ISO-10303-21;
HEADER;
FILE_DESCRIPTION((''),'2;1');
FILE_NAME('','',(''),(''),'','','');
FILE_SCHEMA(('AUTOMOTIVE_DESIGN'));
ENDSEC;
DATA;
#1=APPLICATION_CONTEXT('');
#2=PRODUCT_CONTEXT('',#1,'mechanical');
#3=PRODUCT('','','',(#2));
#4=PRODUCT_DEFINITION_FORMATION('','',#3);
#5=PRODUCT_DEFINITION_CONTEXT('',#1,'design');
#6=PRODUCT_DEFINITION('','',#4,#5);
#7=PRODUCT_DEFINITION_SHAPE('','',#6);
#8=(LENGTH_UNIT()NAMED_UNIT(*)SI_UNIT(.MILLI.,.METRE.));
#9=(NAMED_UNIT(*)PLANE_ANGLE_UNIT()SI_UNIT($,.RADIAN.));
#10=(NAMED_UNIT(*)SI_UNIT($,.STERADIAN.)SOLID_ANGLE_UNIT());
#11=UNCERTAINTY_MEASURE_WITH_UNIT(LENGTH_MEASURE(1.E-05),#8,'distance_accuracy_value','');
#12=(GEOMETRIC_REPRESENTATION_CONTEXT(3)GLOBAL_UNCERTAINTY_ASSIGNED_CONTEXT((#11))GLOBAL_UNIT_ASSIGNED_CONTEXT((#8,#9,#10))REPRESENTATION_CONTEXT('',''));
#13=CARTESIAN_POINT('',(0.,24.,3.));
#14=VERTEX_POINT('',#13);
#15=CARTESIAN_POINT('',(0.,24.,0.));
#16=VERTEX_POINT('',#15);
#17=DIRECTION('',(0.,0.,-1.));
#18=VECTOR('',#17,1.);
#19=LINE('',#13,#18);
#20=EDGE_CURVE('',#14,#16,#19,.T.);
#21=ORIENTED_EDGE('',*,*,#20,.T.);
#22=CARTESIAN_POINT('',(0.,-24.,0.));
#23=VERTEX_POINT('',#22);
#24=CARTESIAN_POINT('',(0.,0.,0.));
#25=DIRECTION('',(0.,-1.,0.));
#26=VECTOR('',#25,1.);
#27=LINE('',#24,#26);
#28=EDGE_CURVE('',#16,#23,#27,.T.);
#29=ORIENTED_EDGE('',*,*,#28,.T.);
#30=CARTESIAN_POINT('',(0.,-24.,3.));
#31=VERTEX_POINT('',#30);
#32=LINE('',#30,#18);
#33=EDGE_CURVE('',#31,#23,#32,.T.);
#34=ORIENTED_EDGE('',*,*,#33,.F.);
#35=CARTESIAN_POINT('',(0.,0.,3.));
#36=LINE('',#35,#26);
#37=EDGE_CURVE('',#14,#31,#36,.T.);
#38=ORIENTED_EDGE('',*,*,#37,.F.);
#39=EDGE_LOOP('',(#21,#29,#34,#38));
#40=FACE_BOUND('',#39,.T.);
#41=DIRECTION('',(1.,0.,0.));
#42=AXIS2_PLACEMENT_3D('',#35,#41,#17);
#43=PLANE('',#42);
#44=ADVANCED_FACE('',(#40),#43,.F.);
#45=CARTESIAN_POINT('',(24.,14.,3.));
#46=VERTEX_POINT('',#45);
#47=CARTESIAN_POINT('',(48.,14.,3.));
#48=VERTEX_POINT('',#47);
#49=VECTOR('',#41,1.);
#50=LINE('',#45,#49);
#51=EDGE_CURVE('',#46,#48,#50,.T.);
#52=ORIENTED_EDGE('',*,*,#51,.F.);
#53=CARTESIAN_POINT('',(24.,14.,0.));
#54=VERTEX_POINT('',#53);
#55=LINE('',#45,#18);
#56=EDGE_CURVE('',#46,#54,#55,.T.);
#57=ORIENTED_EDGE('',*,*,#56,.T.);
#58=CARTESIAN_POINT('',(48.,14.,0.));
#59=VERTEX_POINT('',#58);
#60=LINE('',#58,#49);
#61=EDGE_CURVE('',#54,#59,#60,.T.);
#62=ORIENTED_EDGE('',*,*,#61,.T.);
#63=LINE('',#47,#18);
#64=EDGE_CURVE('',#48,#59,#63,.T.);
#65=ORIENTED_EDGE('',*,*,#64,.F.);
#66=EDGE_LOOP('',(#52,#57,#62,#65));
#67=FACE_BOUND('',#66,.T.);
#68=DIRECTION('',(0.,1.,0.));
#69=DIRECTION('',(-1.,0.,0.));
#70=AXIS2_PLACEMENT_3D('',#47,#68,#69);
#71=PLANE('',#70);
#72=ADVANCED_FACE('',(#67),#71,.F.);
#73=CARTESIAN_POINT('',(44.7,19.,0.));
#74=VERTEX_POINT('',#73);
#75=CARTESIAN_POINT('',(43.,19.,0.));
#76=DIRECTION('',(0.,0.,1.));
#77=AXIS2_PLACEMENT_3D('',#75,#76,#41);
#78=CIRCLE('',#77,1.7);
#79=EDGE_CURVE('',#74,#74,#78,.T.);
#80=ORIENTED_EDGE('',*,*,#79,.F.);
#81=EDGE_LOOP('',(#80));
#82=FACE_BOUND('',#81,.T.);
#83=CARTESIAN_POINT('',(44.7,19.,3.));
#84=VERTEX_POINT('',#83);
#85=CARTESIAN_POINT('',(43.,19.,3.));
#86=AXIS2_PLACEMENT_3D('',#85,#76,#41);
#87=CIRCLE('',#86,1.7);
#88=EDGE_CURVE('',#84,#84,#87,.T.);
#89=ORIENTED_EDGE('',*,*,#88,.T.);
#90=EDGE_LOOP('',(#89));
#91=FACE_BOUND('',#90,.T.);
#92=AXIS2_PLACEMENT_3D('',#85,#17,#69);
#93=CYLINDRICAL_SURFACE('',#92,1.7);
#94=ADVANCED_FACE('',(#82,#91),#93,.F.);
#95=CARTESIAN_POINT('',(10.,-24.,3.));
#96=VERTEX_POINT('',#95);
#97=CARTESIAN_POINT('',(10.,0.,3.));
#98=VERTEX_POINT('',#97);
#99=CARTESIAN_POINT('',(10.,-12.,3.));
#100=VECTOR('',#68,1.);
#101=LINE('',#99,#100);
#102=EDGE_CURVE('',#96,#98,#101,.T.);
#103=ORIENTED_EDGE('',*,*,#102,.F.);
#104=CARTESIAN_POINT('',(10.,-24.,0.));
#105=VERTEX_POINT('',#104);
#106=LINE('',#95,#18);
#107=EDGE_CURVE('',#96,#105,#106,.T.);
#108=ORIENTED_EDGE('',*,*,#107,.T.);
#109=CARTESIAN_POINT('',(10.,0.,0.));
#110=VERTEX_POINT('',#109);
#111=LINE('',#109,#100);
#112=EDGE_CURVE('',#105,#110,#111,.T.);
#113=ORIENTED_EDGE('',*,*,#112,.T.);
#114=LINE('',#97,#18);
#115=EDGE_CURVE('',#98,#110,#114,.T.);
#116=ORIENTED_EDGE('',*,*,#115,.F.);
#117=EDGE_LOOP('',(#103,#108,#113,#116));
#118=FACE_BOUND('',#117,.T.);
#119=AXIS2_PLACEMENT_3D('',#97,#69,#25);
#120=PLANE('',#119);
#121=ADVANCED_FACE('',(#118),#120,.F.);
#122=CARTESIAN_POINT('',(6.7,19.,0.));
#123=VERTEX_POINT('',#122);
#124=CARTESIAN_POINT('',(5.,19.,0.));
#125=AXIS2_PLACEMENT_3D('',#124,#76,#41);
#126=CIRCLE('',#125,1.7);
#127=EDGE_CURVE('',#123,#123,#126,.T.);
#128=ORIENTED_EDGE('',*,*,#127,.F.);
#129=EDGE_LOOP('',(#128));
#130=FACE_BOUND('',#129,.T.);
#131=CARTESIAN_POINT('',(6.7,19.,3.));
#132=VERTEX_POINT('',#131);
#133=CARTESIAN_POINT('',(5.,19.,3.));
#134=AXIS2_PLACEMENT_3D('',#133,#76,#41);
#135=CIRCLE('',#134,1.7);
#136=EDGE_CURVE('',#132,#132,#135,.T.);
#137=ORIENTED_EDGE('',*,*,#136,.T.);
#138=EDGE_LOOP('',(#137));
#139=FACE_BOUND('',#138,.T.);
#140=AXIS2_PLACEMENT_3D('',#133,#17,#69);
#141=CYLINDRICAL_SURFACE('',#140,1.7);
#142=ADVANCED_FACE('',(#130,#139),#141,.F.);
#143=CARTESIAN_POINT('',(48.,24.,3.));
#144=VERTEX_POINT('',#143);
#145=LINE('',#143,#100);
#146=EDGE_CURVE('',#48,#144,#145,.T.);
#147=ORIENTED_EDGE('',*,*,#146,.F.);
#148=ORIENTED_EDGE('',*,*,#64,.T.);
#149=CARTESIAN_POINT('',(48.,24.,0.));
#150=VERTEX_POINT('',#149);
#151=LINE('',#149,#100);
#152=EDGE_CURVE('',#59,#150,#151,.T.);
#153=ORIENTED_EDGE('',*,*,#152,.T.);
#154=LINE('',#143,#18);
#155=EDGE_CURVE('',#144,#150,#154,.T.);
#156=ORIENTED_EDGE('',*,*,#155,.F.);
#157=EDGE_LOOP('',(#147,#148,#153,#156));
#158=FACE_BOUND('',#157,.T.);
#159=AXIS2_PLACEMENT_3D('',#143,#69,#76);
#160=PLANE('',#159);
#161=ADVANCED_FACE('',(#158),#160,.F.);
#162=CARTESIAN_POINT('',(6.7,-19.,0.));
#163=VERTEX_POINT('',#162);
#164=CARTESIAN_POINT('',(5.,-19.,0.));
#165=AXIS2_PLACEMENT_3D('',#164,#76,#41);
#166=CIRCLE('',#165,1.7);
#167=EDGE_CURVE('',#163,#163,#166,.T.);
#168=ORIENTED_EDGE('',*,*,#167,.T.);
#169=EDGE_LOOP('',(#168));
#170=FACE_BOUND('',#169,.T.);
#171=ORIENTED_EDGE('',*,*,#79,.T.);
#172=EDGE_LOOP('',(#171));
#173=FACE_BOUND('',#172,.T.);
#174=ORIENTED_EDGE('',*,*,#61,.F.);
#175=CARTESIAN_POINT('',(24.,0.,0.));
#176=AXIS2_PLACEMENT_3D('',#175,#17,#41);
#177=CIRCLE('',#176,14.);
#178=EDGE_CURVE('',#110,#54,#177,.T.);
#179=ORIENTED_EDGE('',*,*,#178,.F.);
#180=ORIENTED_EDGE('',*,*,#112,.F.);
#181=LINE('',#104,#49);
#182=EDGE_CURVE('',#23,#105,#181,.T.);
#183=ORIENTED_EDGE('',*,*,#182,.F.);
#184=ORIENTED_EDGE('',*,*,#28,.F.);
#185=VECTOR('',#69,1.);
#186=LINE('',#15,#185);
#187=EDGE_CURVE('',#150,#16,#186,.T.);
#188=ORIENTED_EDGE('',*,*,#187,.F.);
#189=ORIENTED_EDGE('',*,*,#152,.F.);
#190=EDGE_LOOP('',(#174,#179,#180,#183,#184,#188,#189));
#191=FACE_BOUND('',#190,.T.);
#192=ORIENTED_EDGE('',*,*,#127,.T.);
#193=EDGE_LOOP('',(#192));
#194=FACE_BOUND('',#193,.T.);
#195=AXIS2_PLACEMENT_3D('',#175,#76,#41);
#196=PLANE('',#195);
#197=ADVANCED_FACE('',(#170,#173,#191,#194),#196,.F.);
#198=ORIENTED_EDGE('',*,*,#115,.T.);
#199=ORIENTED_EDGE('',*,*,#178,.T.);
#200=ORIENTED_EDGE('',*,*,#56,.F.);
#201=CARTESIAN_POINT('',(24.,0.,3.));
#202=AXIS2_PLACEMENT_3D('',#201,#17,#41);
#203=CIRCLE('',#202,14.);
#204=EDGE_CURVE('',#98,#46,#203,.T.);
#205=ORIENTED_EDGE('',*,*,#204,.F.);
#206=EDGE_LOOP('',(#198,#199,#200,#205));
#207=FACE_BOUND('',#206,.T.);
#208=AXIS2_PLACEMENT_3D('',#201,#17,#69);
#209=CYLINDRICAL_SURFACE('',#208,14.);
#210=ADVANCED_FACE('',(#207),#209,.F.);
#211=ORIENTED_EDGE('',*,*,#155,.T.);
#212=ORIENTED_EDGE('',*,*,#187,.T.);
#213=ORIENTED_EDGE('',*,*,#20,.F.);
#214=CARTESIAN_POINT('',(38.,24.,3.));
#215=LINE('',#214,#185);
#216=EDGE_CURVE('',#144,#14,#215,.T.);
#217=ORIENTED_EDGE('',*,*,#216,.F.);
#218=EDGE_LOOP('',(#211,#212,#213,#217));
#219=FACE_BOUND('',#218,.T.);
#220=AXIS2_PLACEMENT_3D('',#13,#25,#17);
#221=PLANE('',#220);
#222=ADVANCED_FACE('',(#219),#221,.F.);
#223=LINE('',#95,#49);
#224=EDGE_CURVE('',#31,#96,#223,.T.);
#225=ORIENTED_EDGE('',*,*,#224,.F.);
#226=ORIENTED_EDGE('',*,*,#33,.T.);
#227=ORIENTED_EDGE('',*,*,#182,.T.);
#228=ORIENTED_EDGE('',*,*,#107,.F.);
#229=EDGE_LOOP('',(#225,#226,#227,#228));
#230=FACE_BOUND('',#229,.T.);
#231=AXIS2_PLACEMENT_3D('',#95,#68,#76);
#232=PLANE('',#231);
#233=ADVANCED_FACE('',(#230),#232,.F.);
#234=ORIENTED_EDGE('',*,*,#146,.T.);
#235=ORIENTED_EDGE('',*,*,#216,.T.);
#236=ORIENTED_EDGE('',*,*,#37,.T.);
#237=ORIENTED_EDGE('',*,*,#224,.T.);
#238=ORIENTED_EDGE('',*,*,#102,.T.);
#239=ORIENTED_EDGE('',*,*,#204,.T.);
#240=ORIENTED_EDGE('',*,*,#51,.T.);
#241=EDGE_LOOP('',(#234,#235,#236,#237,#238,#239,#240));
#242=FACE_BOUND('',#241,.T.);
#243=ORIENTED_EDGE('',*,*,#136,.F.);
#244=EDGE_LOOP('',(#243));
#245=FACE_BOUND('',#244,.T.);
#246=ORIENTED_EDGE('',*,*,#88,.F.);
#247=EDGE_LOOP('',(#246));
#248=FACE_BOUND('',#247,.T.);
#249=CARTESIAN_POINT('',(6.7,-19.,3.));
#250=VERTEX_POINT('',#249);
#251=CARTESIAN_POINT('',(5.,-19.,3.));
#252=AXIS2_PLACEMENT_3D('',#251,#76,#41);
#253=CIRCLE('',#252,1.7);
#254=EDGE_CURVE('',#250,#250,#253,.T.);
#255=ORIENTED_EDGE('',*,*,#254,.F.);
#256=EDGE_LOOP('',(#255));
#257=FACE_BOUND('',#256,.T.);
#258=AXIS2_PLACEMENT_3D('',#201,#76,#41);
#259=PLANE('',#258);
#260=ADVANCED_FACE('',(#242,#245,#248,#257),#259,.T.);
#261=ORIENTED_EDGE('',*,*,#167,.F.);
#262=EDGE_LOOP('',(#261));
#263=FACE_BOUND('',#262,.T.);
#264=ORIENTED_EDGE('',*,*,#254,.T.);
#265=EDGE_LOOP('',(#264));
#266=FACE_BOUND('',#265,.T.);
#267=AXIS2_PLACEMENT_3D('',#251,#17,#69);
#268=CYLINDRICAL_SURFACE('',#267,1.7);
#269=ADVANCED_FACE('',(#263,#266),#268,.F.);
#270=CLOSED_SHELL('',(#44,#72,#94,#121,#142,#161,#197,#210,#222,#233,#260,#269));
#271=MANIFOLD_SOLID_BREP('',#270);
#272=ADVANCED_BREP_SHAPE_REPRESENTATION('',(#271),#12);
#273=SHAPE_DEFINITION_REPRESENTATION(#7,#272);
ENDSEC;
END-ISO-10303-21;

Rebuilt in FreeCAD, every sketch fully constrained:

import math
import FreeCAD as App
import Part
import Sketcher

doc = App.newDocument("Part")
params = doc.addObject("Spreadsheet::Sheet", "Params")
for row, (alias, value) in enumerate([
    ("sketch1_radius", "14 mm"),
    ("sketch1_diameter", "3.4 mm"),
    ("sketch1_width", "48 mm"),
    ("pad1_length", "3 mm"),
], start=1):
    params.set(f"A{row}", alias)
    params.set(f"B{row}", "=" + value)
    params.setAlias(f"B{row}", alias)

body = doc.addObject("PartDesign::Body", "Body")

sketch1 = body.newObject("Sketcher::SketchObject", "Sketch")
sketch1.AttachmentSupport = (doc.getObject("XY_Plane"), [""])
sketch1.MapMode = "FlatFace"
sketch1.addGeometry([
    Part.LineSegment(App.Vector(48, 24, 0), App.Vector(0, 24, 0)),
    Part.LineSegment(App.Vector(0, 24, 0), App.Vector(0, -24, 0)),
    Part.LineSegment(App.Vector(0, -24, 0), App.Vector(10, -24, 0)),
    Part.LineSegment(App.Vector(10, -24, 0), App.Vector(10, 0, 0)),
    Part.ArcOfCircle(Part.Circle(App.Vector(24, 0, 0), App.Vector(0, 0, 1), 14), math.radians(90), math.radians(180)),
    Part.LineSegment(App.Vector(24, 14, 0), App.Vector(48, 14, 0)),
    Part.LineSegment(App.Vector(48, 14, 0), App.Vector(48, 24, 0)),
    Part.Circle(App.Vector(5, -19, 0), App.Vector(0, 0, 1), 1.7),
    Part.Circle(App.Vector(43, 19, 0), App.Vector(0, 0, 1), 1.7),
    Part.Circle(App.Vector(5, 19, 0), App.Vector(0, 0, 1), 1.7),
], False)
sketch1.addConstraint([
    Sketcher.Constraint("Coincident", 0, 2, 1, 1),
    Sketcher.Constraint("Coincident", 1, 2, 2, 1),
    Sketcher.Constraint("Coincident", 2, 2, 3, 1),
    Sketcher.Constraint("Tangent", 3, 2, 4, 2),
    Sketcher.Constraint("Tangent", 4, 1, 5, 1),
    Sketcher.Constraint("Coincident", 5, 2, 6, 1),
    Sketcher.Constraint("Coincident", 6, 2, 0, 1),
    Sketcher.Constraint("Horizontal", 0),
    Sketcher.Constraint("Vertical", 1),
    Sketcher.Constraint("Horizontal", 2),
    Sketcher.Constraint("Vertical", 3),
    Sketcher.Constraint("Horizontal", 5),
    Sketcher.Constraint("Vertical", 6),
    Sketcher.Constraint("Equal", 7, 8),
    Sketcher.Constraint("Equal", 8, 9),
    Sketcher.Constraint("Symmetric", 0, 2, 1, 2, -1, 1),
    Sketcher.Constraint("Symmetric", 7, 3, 9, 3, -1),
    Sketcher.Constraint("PointOnObject", 4, 3, -1),
    Sketcher.Constraint("Horizontal", 8, 3, 9, 3),
    Sketcher.Constraint("Equal", 0, 1),
    Sketcher.Constraint("Equal", 5, 3),
    Sketcher.Constraint("Radius", 4, 14.0),
    Sketcher.Constraint("Diameter", 7, 3.4),
    Sketcher.Constraint("DistanceX", 0, 2, 0, 1, 48.0),
    Sketcher.Constraint("DistanceX", -1, 1, 7, 3, 5.0),
    Sketcher.Constraint("DistanceY", 7, 3, -1, 1, 19.0),
    Sketcher.Constraint("DistanceX", -1, 1, 8, 3, 43.0),
])
sketch1.setExpression("Constraints[21]", "Params.sketch1_radius")
sketch1.setExpression("Constraints[22]", "Params.sketch1_diameter")
sketch1.setExpression("Constraints[23]", "Params.sketch1_width")
pad1 = body.newObject("PartDesign::Pad", "Pad")
pad1.Profile = sketch1
pad1.setExpression("Length", "Params.pad1_length")

doc.recompute()
